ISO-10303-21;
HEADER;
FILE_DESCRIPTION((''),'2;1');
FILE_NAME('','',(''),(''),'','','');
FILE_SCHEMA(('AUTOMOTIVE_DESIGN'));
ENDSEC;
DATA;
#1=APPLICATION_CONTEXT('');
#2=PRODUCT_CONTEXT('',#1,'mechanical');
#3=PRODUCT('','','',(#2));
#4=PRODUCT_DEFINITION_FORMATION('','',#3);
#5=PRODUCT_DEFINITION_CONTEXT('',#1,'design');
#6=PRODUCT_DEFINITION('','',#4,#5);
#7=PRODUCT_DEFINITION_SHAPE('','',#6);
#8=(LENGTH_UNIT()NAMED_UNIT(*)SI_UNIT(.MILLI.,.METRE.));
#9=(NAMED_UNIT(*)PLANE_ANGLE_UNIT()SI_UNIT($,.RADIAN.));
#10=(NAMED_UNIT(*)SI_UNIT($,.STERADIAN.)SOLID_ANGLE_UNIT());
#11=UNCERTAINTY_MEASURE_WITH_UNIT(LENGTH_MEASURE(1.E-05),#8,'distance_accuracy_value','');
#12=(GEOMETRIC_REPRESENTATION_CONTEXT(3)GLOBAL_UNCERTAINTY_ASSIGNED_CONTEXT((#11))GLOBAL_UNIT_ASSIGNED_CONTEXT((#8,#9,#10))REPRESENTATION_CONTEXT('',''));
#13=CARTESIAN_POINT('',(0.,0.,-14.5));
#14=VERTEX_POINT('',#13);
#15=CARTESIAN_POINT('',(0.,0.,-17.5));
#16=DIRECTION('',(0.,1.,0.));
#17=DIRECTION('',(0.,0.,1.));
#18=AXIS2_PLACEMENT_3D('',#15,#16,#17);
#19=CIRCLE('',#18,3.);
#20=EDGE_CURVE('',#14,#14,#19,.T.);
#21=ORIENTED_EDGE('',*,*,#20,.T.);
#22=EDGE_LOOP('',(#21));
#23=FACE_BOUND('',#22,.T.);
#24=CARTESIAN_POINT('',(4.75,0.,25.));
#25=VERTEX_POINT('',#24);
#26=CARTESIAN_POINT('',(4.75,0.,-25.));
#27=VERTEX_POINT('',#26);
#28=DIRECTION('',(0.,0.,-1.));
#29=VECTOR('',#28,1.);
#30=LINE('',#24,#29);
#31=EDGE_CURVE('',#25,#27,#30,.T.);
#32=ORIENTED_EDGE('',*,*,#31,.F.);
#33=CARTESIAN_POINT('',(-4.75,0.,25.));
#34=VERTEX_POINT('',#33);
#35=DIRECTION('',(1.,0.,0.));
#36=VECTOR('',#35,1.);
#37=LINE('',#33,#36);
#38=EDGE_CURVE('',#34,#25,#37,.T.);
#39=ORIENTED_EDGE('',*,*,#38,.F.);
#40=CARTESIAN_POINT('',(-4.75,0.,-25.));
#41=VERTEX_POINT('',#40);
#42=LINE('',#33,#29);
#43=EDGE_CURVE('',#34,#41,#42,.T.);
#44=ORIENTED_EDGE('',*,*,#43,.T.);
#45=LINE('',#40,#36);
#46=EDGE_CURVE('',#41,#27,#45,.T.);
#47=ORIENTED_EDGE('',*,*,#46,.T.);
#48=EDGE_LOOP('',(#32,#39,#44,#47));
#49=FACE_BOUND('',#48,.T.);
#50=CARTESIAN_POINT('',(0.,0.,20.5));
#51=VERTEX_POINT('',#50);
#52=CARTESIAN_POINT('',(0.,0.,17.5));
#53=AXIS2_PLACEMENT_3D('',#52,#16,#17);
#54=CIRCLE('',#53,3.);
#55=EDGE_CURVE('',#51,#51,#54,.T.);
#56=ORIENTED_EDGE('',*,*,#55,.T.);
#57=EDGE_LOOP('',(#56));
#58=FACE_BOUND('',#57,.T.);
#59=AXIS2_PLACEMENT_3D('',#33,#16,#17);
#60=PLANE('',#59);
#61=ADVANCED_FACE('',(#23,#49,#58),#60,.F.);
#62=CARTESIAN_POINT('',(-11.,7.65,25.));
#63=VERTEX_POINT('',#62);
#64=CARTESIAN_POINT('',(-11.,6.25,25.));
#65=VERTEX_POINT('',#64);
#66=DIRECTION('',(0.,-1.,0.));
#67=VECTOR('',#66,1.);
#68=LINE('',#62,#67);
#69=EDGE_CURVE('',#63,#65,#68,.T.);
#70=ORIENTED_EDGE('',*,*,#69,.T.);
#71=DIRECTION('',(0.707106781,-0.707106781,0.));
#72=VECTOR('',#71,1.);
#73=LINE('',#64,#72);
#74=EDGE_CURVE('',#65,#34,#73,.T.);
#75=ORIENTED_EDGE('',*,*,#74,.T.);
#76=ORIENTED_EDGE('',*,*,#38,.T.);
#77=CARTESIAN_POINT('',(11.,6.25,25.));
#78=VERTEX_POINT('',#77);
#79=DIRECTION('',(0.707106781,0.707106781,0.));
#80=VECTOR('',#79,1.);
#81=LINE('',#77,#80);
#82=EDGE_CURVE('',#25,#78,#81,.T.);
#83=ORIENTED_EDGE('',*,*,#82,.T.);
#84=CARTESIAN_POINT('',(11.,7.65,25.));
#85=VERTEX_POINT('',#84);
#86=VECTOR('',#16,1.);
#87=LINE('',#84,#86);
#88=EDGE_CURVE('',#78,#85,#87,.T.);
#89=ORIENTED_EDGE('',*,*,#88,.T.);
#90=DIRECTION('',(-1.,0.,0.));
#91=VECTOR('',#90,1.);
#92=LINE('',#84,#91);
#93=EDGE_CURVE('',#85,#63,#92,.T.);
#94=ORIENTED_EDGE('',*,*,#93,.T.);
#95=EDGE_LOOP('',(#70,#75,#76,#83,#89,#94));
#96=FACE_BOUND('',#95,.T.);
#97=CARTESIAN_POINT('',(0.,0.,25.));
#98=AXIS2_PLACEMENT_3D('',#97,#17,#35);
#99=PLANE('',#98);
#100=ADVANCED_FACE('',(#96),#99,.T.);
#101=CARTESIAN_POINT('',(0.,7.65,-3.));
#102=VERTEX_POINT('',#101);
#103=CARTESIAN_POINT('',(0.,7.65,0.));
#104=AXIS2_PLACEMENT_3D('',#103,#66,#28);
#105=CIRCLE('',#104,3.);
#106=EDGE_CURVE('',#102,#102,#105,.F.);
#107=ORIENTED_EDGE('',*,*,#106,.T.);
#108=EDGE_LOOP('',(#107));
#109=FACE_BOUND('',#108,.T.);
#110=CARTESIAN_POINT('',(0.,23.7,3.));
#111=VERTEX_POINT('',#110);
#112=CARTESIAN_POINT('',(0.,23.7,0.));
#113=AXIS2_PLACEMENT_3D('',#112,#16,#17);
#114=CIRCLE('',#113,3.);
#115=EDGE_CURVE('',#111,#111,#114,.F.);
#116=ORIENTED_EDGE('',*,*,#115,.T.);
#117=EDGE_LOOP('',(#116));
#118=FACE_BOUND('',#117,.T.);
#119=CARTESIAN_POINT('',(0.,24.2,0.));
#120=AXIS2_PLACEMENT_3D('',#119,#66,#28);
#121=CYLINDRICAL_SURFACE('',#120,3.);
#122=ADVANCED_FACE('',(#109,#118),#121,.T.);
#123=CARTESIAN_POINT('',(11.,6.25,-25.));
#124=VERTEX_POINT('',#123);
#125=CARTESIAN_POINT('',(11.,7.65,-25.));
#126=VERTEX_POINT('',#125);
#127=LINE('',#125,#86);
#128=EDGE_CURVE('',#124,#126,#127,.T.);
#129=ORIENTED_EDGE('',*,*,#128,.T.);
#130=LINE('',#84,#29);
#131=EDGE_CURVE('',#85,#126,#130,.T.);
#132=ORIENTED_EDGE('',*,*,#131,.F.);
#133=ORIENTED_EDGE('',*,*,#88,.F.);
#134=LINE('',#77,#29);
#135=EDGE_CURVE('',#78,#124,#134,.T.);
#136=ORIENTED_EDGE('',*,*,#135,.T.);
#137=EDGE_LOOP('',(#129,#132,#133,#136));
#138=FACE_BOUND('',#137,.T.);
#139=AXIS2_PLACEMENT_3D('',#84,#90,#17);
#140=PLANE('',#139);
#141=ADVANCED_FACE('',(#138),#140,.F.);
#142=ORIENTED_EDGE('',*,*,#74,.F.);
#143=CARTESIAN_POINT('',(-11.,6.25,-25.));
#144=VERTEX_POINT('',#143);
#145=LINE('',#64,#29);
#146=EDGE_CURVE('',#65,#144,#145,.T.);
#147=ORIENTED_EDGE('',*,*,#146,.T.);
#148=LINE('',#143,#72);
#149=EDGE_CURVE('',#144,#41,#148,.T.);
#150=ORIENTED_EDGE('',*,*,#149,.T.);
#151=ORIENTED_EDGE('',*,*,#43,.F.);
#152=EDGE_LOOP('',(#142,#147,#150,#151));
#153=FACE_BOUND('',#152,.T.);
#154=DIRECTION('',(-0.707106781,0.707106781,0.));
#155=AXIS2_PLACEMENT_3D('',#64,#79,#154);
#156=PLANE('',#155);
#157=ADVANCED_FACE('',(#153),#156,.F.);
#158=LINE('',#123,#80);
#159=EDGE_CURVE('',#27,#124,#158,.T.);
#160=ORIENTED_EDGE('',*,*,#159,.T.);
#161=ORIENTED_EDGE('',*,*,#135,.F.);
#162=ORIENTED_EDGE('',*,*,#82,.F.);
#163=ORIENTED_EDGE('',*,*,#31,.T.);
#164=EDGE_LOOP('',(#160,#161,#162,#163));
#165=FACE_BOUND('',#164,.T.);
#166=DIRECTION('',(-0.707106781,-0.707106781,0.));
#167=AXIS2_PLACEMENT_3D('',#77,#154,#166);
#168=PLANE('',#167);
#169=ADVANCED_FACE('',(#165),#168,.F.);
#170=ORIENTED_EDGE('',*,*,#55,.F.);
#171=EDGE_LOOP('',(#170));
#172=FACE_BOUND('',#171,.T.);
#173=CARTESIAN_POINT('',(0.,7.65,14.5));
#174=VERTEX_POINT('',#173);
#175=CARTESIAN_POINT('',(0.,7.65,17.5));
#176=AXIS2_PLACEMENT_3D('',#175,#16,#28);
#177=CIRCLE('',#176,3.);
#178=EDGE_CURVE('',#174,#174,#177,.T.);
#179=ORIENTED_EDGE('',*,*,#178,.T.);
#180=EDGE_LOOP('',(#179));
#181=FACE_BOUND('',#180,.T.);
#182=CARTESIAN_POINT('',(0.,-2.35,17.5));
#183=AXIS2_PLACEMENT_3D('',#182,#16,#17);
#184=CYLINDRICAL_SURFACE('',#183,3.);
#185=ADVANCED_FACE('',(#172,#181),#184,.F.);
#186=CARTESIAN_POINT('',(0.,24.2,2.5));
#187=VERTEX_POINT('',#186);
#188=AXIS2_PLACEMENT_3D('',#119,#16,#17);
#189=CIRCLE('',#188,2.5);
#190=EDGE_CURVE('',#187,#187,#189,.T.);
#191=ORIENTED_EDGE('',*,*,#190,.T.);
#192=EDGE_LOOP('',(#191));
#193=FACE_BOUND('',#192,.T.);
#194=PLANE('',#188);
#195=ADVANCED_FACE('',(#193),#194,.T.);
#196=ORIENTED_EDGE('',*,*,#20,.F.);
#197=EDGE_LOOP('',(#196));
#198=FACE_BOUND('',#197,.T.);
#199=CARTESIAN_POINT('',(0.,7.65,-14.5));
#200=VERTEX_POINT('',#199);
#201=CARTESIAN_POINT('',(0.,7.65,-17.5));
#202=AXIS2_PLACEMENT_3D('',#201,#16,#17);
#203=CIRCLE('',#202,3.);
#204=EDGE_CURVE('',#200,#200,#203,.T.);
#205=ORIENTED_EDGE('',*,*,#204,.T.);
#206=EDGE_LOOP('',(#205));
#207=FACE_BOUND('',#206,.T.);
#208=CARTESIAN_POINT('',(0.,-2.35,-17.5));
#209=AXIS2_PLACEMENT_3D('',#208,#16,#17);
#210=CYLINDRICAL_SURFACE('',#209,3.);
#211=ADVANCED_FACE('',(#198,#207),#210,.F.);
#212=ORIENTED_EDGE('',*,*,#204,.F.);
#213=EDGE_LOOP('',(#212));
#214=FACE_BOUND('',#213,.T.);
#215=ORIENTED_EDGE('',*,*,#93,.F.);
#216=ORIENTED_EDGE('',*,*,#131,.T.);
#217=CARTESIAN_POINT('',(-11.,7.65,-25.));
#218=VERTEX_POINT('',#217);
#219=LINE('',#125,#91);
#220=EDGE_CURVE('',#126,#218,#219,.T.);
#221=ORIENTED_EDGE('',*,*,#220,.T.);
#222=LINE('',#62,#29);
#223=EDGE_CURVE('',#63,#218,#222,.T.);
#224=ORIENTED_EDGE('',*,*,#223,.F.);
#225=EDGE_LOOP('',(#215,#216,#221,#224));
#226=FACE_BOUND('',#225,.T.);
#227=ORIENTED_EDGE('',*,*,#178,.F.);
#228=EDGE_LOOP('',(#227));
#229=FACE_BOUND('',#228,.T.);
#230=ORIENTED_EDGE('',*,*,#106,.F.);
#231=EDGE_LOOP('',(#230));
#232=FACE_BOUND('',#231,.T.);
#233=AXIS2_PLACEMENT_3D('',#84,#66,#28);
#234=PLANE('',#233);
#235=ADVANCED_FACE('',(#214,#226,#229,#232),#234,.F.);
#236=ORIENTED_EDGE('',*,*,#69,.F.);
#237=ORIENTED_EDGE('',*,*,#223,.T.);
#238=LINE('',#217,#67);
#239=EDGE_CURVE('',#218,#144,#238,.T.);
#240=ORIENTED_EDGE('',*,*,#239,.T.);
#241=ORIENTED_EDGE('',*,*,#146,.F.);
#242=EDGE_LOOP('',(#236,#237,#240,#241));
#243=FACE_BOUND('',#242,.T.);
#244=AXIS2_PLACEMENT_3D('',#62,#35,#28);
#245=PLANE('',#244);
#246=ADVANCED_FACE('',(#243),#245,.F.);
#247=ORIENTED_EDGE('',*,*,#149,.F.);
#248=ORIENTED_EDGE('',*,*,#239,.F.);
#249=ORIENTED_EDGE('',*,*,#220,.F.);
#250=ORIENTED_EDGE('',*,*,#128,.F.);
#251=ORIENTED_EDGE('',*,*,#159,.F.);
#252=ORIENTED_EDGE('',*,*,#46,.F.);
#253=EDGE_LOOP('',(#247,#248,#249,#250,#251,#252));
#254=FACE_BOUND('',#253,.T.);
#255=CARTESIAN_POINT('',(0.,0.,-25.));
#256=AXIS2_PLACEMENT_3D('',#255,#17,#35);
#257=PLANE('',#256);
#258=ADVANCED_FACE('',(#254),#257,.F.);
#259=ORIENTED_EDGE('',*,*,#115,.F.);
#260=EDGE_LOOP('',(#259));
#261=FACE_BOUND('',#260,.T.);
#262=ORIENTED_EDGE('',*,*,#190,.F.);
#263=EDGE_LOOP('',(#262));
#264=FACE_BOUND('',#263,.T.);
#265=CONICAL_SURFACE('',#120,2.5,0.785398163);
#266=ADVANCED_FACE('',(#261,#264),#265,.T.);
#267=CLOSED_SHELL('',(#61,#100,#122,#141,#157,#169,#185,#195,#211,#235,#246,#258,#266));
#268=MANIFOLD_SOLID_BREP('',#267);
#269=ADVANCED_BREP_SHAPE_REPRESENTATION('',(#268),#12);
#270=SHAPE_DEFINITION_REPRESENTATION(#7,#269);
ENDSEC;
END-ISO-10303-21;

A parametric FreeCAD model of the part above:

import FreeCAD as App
import Part
import Sketcher
from FreeCAD import Vector
Q = App.Units.Quantity


def edges_at(feature, points):
    """Names of the edges that pass closest to the given points."""
    edges = feature.Shape.Edges
    near = lambda p: min(range(len(edges)), key=lambda i: edges[i].distToShape(Part.Vertex(*p))[0])
    return sorted({f"Edge{near(p) + 1}" for p in points})

doc = App.newDocument("Part")
params = doc.addObject("Spreadsheet::Sheet", "Params")
for row, (alias, value) in enumerate([
    ("sketch1_width", "22 mm"),
    ("sketch1_width2", "9.5 mm"),
    ("sketch1_height", "1.4 mm"),
    ("pad1_length", "50 mm"),
    ("sketch2_diameter", "6 mm"),
    ("pad2_length", "16.55 mm"),
    ("sketch3_diameter", "6 mm"),
    ("pocket1_length", "10 mm"),
    ("chamfer_size", "0.5 mm"),
], start=1):
    params.set(f"A{row}", alias)
    params.set(f"B{row}", "=" + value)
    params.setAlias(f"B{row}", alias)

body = doc.addObject("PartDesign::Body", "Body")

sketch1 = doc.addObject("Sketcher::SketchObject", "Sketch")
body.addObject(sketch1)
sketch1.AttachmentSupport = (doc.XY_Plane, [""])
sketch1.MapMode = "FlatFace"
sketch1.addGeometry(Part.LineSegment(Vector(11, 7.7, 0), Vector(-11, 7.7, 0)), False)
sketch1.addGeometry(Part.LineSegment(Vector(-11, 7.7, 0), Vector(-11, 6.2, 0)), False)
sketch1.addGeometry(Part.LineSegment(Vector(-11, 6.2, 0), Vector(-4.8, 0, 0)), False)
sketch1.addGeometry(Part.LineSegment(Vector(-4.8, 0, 0), Vector(4.8, 0, 0)), False)
sketch1.addGeometry(Part.LineSegment(Vector(4.8, 0, 0), Vector(11, 6.2, 0)), False)
sketch1.addGeometry(Part.LineSegment(Vector(11, 6.2, 0), Vector(11, 7.7, 0)), False)
sketch1.addConstraint(Sketcher.Constraint("Coincident", 0, 2, 1, 1))
sketch1.addConstraint(Sketcher.Constraint("Coincident", 1, 2, 2, 1))
sketch1.addConstraint(Sketcher.Constraint("Coincident", 2, 2, 3, 1))
sketch1.addConstraint(Sketcher.Constraint("Coincident", 3, 2, 4, 1))
sketch1.addConstraint(Sketcher.Constraint("Coincident", 4, 2, 5, 1))
sketch1.addConstraint(Sketcher.Constraint("Coincident", 5, 2, 0, 1))
sketch1.addConstraint(Sketcher.Constraint("Horizontal", 0))
sketch1.addConstraint(Sketcher.Constraint("Vertical", 1))
sketch1.addConstraint(Sketcher.Constraint("Horizontal", 3))
sketch1.addConstraint(Sketcher.Constraint("Vertical", 5))
sketch1.addConstraint(Sketcher.Constraint("Symmetric", 2, 2, 3, 2, -1, 1))
sketch1.addConstraint(Sketcher.Constraint("Symmetric", 1, 2, 4, 2, -2))
sketch1.addConstraint(Sketcher.Constraint("Perpendicular", 2, 4))
sketch1.addConstraint(Sketcher.Constraint("DistanceX", 0, 2, 0, 1, Q("22 mm")))
sketch1.addConstraint(Sketcher.Constraint("DistanceX", 3, 1, 3, 2, Q("9.5 mm")))
sketch1.addConstraint(Sketcher.Constraint("DistanceY", 1, 2, 1, 1, Q("1.4 mm")))
sketch1.setExpression("Constraints[13]", "Params.sketch1_width")
sketch1.setExpression("Constraints[14]", "Params.sketch1_width2")
sketch1.setExpression("Constraints[15]", "Params.sketch1_height")
pad1 = doc.addObject("PartDesign::Pad", "Pad")
body.addObject(pad1)
pad1.Profile = sketch1
pad1.setExpression("Length", "Params.pad1_length")
pad1.Midplane = True

sketch2 = doc.addObject("Sketcher::SketchObject", "Sketch001")
body.addObject(sketch2)
sketch2.AttachmentSupport = (doc.XZ_Plane, [""])
sketch2.MapMode = "FlatFace"
sketch2.AttachmentOffset = App.Placement(Vector(0, 0, -7.65), App.Rotation())
sketch2.addGeometry(Part.Circle(Vector(0, 0, 0), Vector(0, 0, 1), 3), False)
sketch2.addConstraint(Sketcher.Constraint("Coincident", 0, 3, -1, 1))
sketch2.addConstraint(Sketcher.Constraint("Diameter", 0, Q("6 mm")))
sketch2.setExpression("Constraints[1]", "Params.sketch2_diameter")
pad2 = doc.addObject("PartDesign::Pad", "Pad001")
body.addObject(pad2)
pad2.Profile = sketch2
pad2.setExpression("Length", "Params.pad2_length")
pad2.Reversed = True

sketch3 = doc.addObject("Sketcher::SketchObject", "Sketch002")
body.addObject(sketch3)
sketch3.AttachmentSupport = (doc.XZ_Plane, [""])
sketch3.MapMode = "FlatFace"
sketch3.AttachmentOffset = App.Placement(Vector(0, 0, -7.65), App.Rotation())
sketch3.addGeometry(Part.Circle(Vector(0, -17.5, 0), Vector(0, 0, 1), 3), False)
sketch3.addGeometry(Part.Circle(Vector(0, 17.5, 0), Vector(0, 0, 1), 3), False)
sketch3.addConstraint(Sketcher.Constraint("Equal", 0, 1))
sketch3.addConstraint(Sketcher.Constraint("Symmetric", 0, 3, 1, 3, -1, 1))
sketch3.addConstraint(Sketcher.Constraint("PointOnObject", 0, 3, -2))
sketch3.addConstraint(Sketcher.Constraint("Diameter", 0, Q("6 mm")))
sketch3.addConstraint(Sketcher.Constraint("DistanceY", 0, 3, 1, 3, Q("35 mm")))
sketch3.setExpression("Constraints[3]", "Params.sketch3_diameter")
pocket1 = doc.addObject("PartDesign::Pocket", "Pocket")
body.addObject(pocket1)
pocket1.Profile = sketch3
pocket1.setExpression("Length", "Params.pocket1_length")
pocket1.Reversed = True
doc.recompute()

chamfer = doc.addObject("PartDesign::Chamfer", "Chamfer")
body.addObject(chamfer)
chamfer.Base = (pocket1, edges_at(pocket1, [(-3, 24.2, 0)]))
chamfer.setExpression("Size", "Params.chamfer_size")

doc.recompute()
